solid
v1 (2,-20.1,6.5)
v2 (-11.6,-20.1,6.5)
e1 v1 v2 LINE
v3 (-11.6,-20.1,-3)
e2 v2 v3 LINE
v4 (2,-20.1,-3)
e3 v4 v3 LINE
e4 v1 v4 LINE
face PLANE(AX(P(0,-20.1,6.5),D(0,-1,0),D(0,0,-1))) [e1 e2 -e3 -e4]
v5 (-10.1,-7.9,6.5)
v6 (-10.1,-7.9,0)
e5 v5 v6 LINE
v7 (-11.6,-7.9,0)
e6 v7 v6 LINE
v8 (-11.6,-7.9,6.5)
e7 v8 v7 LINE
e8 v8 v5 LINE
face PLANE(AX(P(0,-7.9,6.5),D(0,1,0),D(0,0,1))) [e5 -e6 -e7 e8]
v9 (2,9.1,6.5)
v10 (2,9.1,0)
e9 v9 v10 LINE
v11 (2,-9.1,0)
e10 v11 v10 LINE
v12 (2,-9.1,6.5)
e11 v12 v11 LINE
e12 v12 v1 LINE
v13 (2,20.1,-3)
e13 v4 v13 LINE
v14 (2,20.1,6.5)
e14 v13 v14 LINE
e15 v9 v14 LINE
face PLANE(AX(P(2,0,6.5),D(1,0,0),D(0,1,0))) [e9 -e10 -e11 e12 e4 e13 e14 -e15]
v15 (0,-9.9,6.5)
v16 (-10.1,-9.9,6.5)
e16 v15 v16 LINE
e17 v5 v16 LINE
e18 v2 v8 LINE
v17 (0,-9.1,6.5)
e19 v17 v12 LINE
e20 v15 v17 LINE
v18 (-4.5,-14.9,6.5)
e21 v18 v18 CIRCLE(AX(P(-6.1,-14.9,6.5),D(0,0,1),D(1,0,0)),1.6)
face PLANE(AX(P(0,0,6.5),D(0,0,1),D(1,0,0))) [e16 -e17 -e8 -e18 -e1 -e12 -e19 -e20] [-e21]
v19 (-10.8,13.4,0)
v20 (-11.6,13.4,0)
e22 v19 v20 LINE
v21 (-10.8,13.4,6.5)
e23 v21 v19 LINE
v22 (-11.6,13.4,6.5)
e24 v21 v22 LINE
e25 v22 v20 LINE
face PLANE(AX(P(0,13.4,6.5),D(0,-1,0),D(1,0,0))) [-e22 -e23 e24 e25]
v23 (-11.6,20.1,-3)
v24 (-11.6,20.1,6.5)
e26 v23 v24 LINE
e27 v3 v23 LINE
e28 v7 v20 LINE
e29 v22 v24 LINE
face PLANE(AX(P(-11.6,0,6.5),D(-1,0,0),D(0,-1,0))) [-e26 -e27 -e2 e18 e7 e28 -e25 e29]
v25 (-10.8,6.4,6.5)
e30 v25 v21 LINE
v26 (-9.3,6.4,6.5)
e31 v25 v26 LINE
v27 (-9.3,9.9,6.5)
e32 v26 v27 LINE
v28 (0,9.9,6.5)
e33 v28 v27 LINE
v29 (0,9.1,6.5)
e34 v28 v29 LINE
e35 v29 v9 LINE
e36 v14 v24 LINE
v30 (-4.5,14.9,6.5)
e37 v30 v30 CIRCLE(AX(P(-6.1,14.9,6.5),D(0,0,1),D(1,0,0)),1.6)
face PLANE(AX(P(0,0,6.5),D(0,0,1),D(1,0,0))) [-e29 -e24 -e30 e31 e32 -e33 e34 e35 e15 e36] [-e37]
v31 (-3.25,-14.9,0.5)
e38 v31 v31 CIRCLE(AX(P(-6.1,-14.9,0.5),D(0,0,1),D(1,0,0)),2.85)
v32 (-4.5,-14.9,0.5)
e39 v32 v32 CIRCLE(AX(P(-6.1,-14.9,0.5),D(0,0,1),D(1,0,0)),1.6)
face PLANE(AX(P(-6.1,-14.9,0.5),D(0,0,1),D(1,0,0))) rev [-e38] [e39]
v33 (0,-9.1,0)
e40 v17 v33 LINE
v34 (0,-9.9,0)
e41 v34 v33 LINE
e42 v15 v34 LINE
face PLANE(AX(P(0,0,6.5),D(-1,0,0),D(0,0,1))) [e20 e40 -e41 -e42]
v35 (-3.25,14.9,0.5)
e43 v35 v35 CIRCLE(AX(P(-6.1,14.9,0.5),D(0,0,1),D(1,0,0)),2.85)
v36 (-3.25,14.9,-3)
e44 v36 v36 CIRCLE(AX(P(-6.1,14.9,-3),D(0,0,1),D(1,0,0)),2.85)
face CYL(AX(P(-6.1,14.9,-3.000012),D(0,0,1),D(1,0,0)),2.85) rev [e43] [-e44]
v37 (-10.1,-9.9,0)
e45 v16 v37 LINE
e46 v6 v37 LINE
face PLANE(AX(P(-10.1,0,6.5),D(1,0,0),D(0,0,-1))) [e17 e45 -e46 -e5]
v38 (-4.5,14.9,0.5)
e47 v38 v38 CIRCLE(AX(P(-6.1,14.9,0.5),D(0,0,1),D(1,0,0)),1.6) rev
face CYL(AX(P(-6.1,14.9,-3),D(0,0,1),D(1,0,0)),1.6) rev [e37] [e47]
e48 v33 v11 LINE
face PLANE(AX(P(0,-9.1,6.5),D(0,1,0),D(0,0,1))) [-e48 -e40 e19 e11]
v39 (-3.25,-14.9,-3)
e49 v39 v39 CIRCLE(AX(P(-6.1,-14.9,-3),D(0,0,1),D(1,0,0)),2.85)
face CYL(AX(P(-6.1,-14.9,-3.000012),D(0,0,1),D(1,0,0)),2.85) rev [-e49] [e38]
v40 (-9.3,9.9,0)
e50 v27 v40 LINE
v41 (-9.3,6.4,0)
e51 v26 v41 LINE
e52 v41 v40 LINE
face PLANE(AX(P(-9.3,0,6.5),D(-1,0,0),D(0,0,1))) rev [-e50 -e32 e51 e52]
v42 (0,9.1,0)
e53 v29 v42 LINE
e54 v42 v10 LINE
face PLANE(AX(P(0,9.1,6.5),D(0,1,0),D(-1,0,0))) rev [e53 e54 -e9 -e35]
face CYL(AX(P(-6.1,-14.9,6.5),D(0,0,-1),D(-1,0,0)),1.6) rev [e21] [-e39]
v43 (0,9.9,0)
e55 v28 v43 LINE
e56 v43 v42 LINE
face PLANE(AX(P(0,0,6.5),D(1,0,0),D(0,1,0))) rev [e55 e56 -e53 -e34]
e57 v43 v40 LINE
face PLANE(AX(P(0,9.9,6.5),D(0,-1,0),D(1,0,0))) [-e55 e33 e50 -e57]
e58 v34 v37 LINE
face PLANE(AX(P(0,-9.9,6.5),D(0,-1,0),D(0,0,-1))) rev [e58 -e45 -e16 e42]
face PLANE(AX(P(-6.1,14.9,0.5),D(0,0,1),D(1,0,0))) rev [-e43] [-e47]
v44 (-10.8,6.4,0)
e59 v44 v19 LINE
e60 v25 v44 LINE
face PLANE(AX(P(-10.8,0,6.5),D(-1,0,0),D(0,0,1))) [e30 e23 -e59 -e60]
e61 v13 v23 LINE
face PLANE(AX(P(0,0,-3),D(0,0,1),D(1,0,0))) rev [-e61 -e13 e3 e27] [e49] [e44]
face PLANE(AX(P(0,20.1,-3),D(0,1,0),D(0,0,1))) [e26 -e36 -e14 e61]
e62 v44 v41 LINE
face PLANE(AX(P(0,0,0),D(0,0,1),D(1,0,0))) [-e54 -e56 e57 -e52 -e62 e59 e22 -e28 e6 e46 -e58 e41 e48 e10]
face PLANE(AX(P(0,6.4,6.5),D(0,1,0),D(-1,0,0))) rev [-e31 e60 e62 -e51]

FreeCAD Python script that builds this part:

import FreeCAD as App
import Part
import Sketcher
from FreeCAD import Vector


def add_polygon(sketch, points):
    """Adds a closed chain of lines whose ends are joined by coincident constraints."""
    first, n = sketch.GeometryCount, len(points)
    for a, b in zip(points, points[1:] + points[:1]):
        sketch.addGeometry(Part.LineSegment(App.Vector(*a, 0), App.Vector(*b, 0)), False)
    for i in range(n):
        sketch.addConstraint(Sketcher.Constraint("Coincident", first + i, 2, first + (i + 1) % n, 1))

doc = App.newDocument("Part")
params = doc.addObject("Spreadsheet::Sheet", "Params")
for row, (alias, value) in enumerate([
    ("sketch1_diameter", "3.2 mm"),
    ("sketch1_width", "2 mm"),
    ("sketch1_height", "11 mm"),
    ("sketch1_height2", "7 mm"),
    ("sketch1_width2", "1.5 mm"),
    ("pad1_length", "6.5 mm"),
    ("sketch2_diameter", "5.7 mm"),
    ("sketch2_width", "13.6 mm"),
    ("sketch2_height", "40.2 mm"),
    ("pad2_length", "3 mm"),
    ("sketch3_diameter", "5.7 mm"),
    ("pocket1_length", "3.5 mm"),
    ("pocket1_length2", "4 mm"),
], start=1):
    params.set(f"A{row}", alias)
    params.set(f"B{row}", "=" + value)
    params.setAlias(f"B{row}", alias)

body = doc.addObject("PartDesign::Body", "Body")
body.AllowCompound = True

# Sketch on XY plane
sketch1 = body.newObject("Sketcher::SketchObject", "Sketch")
sketch1.AttachmentSupport = (doc.getObject("XY_Plane"), [""])
sketch1.MapMode = "FlatFace"
add_polygon(sketch1, [(-10.1, -9.9), (-10.1, -7.9), (-11.6, -7.9), (-11.6, -20.1), (2, -20.1), (2, -9.1), (0, -9.1), (0, -9.9)])  # lines 0-7
sketch1.addGeometry(Part.Circle(Vector(-6.1, -14.9, 0), Vector(0, 0, 1), 1.6), False)  # 8
add_polygon(sketch1, [(-11.6, 20.1), (-11.6, 13.4), (-10.8, 13.4), (-10.8, 6.4), (-9.3, 6.4), (-9.3, 9.9), (0, 9.9), (0, 9.1), (2, 9.1), (2, 20.1)])  # lines 9-18
sketch1.addGeometry(Part.Circle(Vector(-6.1, 14.9, 0), Vector(0, 0, 1), 1.6), False)  # 19
sketch1.addConstraint([
    Sketcher.Constraint("Vertical", 0),
    Sketcher.Constraint("Horizontal", 1),
    Sketcher.Constraint("Vertical", 2),
    Sketcher.Constraint("Horizontal", 3),
    Sketcher.Constraint("Vertical", 4),
    Sketcher.Constraint("Horizontal", 5),
    Sketcher.Constraint("Vertical", 6),
    Sketcher.Constraint("Horizontal", 7),
    Sketcher.Constraint("Vertical", 9),
    Sketcher.Constraint("Horizontal", 10),
    Sketcher.Constraint("Vertical", 11),
    Sketcher.Constraint("Horizontal", 12),
    Sketcher.Constraint("Vertical", 13),
    Sketcher.Constraint("Horizontal", 14),
    Sketcher.Constraint("Vertical", 15),
    Sketcher.Constraint("Horizontal", 16),
    Sketcher.Constraint("Vertical", 17),
    Sketcher.Constraint("Horizontal", 18),
    Sketcher.Constraint("Equal", 8, 19),
    Sketcher.Constraint("Symmetric", 6, 2, 14, 2, -1, 1),
    Sketcher.Constraint("Symmetric", 8, 3, 19, 3, -1),
    Sketcher.Constraint("Symmetric", 5, 2, 15, 2, -1),
    Sketcher.Constraint("Symmetric", 3, 2, 17, 2, -1),
    Sketcher.Constraint("Vertical", 2, 2, 9, 2),
    Sketcher.Constraint("Equal", 1, 12),
    Sketcher.Constraint("Equal", 16, 0),
    Sketcher.Constraint("Equal", 10, 6),
    Sketcher.Constraint("Diameter", 8, 3.2),
    Sketcher.Constraint("DistanceX", 5, 2, 5, 1, 2.0),
    Sketcher.Constraint("DistanceY", 4, 1, 4, 2, 11.0),
    Sketcher.Constraint("DistanceY", 11, 2, 11, 1, 7.0),
    Sketcher.Constraint("DistanceX", 1, 2, 1, 1, 1.5),
    Sketcher.Constraint("DistanceX", 3, 1, 3, 2, 13.6),
    Sketcher.Constraint("DistanceX", 10, 1, 10, 2, 0.8),
    Sketcher.Constraint("DistanceY", 9, 2, 9, 1, 6.7),
    Sketcher.Constraint("DistanceX", 0, 2, 8, 3, 4.0),
    Sketcher.Constraint("DistanceY", 8, 3, 0, 2, 7.0),
    Sketcher.Constraint("DistanceY", 2, 2, 19, 3, 35.0),
])
sketch1.setExpression("Constraints[45]", "Params.sketch1_diameter")
sketch1.setExpression("Constraints[46]", "Params.sketch1_width")
sketch1.setExpression("Constraints[47]", "Params.sketch1_height")
sketch1.setExpression("Constraints[48]", "Params.sketch1_height2")
sketch1.setExpression("Constraints[49]", "Params.sketch1_width2")
pad1 = body.newObject("PartDesign::Pad", "Pad")
pad1.Profile = sketch1
pad1.setExpression("Length", "Params.pad1_length")

# Sketch on XY plane
sketch2 = body.newObject("Sketcher::SketchObject", "Sketch001")
sketch2.AttachmentSupport = (doc.getObject("XY_Plane"), [""])
sketch2.MapMode = "FlatFace"
add_polygon(sketch2, [(-11.6, 20.1), (-11.6, -20.1), (2, -20.1), (2, 20.1)])  # lines 0-3
sketch2.addGeometry(Part.Circle(Vector(-6.1, -14.9, 0), Vector(0, 0, 1), 2.9), False)  # 4
sketch2.addGeometry(Part.Circle(Vector(-6.1, 14.9, 0), Vector(0, 0, 1), 2.9), False)  # 5
sketch2.addConstraint([
    Sketcher.Constraint("Vertical", 0),
    Sketcher.Constraint("Horizontal", 1),
    Sketcher.Constraint("Vertical", 2),
    Sketcher.Constraint("Horizontal", 3),
    Sketcher.Constraint("Equal", 4, 5),
    Sketcher.Constraint("Symmetric", 4, 3, 5, 3, -1),
    Sketcher.Constraint("Diameter", 4, 5.7),
    Sketcher.Constraint("DistanceX", 1, 1, 1, 2, 13.6),
    Sketcher.Constraint("DistanceY", 0, 2, 0, 1, 40.2),
    Sketcher.Constraint("DistanceX", -1, 1, 1, 2, 2.0),
    Sketcher.Constraint("DistanceY", 0, 2, 5, 3, 35.0),
    Sketcher.Constraint("DistanceY", 4, 3, 2, 2, 35.0),
    Sketcher.Constraint("DistanceX", 4, 3, -1, 1, 6.1),
])
sketch2.setExpression("Constraints[10]", "Params.sketch2_diameter")
sketch2.setExpression("Constraints[11]", "Params.sketch2_width")
sketch2.setExpression("Constraints[12]", "Params.sketch2_height")
pad2 = body.newObject("PartDesign::Pad", "Pad001")
pad2.Profile = sketch2
pad2.setExpression("Length", "Params.pad2_length")
pad2.Reversed = True

# Sketch on XY plane
sketch3 = body.newObject("Sketcher::SketchObject", "Sketch002")
sketch3.AttachmentSupport = (doc.getObject("XY_Plane"), [""])
sketch3.MapMode = "FlatFace"
sketch3.AttachmentOffset = App.Placement(Vector(0, 0, -3), App.Rotation())
sketch3.addGeometry([
    Part.Circle(Vector(-6.1, 14.9, 0), Vector(0, 0, 1), 2.9),
    Part.Circle(Vector(-6.1, -14.9, 0), Vector(0, 0, 1), 2.9),
], False)
sketch3.addConstraint([
    Sketcher.Constraint("Equal", 0, 1),
    Sketcher.Constraint("Symmetric", 0, 3, 1, 3, -1),
    Sketcher.Constraint("Diameter", 0, 5.7),
    Sketcher.Constraint("DistanceX", 0, 3, -1, 1, 6.1),
    Sketcher.Constraint("DistanceY", -1, 1, 0, 3, 14.9),
])
sketch3.setExpression("Constraints[2]", "Params.sketch3_diameter")
pocket1 = body.newObject("PartDesign::Pocket", "Pocket")
pocket1.Profile = sketch3
pocket1.Type = "TwoLengths"
pocket1.setExpression("Length", "Params.pocket1_length")
pocket1.setExpression("Length2", "Params.pocket1_length2")
pocket1.Reversed = True

doc.recompute()
